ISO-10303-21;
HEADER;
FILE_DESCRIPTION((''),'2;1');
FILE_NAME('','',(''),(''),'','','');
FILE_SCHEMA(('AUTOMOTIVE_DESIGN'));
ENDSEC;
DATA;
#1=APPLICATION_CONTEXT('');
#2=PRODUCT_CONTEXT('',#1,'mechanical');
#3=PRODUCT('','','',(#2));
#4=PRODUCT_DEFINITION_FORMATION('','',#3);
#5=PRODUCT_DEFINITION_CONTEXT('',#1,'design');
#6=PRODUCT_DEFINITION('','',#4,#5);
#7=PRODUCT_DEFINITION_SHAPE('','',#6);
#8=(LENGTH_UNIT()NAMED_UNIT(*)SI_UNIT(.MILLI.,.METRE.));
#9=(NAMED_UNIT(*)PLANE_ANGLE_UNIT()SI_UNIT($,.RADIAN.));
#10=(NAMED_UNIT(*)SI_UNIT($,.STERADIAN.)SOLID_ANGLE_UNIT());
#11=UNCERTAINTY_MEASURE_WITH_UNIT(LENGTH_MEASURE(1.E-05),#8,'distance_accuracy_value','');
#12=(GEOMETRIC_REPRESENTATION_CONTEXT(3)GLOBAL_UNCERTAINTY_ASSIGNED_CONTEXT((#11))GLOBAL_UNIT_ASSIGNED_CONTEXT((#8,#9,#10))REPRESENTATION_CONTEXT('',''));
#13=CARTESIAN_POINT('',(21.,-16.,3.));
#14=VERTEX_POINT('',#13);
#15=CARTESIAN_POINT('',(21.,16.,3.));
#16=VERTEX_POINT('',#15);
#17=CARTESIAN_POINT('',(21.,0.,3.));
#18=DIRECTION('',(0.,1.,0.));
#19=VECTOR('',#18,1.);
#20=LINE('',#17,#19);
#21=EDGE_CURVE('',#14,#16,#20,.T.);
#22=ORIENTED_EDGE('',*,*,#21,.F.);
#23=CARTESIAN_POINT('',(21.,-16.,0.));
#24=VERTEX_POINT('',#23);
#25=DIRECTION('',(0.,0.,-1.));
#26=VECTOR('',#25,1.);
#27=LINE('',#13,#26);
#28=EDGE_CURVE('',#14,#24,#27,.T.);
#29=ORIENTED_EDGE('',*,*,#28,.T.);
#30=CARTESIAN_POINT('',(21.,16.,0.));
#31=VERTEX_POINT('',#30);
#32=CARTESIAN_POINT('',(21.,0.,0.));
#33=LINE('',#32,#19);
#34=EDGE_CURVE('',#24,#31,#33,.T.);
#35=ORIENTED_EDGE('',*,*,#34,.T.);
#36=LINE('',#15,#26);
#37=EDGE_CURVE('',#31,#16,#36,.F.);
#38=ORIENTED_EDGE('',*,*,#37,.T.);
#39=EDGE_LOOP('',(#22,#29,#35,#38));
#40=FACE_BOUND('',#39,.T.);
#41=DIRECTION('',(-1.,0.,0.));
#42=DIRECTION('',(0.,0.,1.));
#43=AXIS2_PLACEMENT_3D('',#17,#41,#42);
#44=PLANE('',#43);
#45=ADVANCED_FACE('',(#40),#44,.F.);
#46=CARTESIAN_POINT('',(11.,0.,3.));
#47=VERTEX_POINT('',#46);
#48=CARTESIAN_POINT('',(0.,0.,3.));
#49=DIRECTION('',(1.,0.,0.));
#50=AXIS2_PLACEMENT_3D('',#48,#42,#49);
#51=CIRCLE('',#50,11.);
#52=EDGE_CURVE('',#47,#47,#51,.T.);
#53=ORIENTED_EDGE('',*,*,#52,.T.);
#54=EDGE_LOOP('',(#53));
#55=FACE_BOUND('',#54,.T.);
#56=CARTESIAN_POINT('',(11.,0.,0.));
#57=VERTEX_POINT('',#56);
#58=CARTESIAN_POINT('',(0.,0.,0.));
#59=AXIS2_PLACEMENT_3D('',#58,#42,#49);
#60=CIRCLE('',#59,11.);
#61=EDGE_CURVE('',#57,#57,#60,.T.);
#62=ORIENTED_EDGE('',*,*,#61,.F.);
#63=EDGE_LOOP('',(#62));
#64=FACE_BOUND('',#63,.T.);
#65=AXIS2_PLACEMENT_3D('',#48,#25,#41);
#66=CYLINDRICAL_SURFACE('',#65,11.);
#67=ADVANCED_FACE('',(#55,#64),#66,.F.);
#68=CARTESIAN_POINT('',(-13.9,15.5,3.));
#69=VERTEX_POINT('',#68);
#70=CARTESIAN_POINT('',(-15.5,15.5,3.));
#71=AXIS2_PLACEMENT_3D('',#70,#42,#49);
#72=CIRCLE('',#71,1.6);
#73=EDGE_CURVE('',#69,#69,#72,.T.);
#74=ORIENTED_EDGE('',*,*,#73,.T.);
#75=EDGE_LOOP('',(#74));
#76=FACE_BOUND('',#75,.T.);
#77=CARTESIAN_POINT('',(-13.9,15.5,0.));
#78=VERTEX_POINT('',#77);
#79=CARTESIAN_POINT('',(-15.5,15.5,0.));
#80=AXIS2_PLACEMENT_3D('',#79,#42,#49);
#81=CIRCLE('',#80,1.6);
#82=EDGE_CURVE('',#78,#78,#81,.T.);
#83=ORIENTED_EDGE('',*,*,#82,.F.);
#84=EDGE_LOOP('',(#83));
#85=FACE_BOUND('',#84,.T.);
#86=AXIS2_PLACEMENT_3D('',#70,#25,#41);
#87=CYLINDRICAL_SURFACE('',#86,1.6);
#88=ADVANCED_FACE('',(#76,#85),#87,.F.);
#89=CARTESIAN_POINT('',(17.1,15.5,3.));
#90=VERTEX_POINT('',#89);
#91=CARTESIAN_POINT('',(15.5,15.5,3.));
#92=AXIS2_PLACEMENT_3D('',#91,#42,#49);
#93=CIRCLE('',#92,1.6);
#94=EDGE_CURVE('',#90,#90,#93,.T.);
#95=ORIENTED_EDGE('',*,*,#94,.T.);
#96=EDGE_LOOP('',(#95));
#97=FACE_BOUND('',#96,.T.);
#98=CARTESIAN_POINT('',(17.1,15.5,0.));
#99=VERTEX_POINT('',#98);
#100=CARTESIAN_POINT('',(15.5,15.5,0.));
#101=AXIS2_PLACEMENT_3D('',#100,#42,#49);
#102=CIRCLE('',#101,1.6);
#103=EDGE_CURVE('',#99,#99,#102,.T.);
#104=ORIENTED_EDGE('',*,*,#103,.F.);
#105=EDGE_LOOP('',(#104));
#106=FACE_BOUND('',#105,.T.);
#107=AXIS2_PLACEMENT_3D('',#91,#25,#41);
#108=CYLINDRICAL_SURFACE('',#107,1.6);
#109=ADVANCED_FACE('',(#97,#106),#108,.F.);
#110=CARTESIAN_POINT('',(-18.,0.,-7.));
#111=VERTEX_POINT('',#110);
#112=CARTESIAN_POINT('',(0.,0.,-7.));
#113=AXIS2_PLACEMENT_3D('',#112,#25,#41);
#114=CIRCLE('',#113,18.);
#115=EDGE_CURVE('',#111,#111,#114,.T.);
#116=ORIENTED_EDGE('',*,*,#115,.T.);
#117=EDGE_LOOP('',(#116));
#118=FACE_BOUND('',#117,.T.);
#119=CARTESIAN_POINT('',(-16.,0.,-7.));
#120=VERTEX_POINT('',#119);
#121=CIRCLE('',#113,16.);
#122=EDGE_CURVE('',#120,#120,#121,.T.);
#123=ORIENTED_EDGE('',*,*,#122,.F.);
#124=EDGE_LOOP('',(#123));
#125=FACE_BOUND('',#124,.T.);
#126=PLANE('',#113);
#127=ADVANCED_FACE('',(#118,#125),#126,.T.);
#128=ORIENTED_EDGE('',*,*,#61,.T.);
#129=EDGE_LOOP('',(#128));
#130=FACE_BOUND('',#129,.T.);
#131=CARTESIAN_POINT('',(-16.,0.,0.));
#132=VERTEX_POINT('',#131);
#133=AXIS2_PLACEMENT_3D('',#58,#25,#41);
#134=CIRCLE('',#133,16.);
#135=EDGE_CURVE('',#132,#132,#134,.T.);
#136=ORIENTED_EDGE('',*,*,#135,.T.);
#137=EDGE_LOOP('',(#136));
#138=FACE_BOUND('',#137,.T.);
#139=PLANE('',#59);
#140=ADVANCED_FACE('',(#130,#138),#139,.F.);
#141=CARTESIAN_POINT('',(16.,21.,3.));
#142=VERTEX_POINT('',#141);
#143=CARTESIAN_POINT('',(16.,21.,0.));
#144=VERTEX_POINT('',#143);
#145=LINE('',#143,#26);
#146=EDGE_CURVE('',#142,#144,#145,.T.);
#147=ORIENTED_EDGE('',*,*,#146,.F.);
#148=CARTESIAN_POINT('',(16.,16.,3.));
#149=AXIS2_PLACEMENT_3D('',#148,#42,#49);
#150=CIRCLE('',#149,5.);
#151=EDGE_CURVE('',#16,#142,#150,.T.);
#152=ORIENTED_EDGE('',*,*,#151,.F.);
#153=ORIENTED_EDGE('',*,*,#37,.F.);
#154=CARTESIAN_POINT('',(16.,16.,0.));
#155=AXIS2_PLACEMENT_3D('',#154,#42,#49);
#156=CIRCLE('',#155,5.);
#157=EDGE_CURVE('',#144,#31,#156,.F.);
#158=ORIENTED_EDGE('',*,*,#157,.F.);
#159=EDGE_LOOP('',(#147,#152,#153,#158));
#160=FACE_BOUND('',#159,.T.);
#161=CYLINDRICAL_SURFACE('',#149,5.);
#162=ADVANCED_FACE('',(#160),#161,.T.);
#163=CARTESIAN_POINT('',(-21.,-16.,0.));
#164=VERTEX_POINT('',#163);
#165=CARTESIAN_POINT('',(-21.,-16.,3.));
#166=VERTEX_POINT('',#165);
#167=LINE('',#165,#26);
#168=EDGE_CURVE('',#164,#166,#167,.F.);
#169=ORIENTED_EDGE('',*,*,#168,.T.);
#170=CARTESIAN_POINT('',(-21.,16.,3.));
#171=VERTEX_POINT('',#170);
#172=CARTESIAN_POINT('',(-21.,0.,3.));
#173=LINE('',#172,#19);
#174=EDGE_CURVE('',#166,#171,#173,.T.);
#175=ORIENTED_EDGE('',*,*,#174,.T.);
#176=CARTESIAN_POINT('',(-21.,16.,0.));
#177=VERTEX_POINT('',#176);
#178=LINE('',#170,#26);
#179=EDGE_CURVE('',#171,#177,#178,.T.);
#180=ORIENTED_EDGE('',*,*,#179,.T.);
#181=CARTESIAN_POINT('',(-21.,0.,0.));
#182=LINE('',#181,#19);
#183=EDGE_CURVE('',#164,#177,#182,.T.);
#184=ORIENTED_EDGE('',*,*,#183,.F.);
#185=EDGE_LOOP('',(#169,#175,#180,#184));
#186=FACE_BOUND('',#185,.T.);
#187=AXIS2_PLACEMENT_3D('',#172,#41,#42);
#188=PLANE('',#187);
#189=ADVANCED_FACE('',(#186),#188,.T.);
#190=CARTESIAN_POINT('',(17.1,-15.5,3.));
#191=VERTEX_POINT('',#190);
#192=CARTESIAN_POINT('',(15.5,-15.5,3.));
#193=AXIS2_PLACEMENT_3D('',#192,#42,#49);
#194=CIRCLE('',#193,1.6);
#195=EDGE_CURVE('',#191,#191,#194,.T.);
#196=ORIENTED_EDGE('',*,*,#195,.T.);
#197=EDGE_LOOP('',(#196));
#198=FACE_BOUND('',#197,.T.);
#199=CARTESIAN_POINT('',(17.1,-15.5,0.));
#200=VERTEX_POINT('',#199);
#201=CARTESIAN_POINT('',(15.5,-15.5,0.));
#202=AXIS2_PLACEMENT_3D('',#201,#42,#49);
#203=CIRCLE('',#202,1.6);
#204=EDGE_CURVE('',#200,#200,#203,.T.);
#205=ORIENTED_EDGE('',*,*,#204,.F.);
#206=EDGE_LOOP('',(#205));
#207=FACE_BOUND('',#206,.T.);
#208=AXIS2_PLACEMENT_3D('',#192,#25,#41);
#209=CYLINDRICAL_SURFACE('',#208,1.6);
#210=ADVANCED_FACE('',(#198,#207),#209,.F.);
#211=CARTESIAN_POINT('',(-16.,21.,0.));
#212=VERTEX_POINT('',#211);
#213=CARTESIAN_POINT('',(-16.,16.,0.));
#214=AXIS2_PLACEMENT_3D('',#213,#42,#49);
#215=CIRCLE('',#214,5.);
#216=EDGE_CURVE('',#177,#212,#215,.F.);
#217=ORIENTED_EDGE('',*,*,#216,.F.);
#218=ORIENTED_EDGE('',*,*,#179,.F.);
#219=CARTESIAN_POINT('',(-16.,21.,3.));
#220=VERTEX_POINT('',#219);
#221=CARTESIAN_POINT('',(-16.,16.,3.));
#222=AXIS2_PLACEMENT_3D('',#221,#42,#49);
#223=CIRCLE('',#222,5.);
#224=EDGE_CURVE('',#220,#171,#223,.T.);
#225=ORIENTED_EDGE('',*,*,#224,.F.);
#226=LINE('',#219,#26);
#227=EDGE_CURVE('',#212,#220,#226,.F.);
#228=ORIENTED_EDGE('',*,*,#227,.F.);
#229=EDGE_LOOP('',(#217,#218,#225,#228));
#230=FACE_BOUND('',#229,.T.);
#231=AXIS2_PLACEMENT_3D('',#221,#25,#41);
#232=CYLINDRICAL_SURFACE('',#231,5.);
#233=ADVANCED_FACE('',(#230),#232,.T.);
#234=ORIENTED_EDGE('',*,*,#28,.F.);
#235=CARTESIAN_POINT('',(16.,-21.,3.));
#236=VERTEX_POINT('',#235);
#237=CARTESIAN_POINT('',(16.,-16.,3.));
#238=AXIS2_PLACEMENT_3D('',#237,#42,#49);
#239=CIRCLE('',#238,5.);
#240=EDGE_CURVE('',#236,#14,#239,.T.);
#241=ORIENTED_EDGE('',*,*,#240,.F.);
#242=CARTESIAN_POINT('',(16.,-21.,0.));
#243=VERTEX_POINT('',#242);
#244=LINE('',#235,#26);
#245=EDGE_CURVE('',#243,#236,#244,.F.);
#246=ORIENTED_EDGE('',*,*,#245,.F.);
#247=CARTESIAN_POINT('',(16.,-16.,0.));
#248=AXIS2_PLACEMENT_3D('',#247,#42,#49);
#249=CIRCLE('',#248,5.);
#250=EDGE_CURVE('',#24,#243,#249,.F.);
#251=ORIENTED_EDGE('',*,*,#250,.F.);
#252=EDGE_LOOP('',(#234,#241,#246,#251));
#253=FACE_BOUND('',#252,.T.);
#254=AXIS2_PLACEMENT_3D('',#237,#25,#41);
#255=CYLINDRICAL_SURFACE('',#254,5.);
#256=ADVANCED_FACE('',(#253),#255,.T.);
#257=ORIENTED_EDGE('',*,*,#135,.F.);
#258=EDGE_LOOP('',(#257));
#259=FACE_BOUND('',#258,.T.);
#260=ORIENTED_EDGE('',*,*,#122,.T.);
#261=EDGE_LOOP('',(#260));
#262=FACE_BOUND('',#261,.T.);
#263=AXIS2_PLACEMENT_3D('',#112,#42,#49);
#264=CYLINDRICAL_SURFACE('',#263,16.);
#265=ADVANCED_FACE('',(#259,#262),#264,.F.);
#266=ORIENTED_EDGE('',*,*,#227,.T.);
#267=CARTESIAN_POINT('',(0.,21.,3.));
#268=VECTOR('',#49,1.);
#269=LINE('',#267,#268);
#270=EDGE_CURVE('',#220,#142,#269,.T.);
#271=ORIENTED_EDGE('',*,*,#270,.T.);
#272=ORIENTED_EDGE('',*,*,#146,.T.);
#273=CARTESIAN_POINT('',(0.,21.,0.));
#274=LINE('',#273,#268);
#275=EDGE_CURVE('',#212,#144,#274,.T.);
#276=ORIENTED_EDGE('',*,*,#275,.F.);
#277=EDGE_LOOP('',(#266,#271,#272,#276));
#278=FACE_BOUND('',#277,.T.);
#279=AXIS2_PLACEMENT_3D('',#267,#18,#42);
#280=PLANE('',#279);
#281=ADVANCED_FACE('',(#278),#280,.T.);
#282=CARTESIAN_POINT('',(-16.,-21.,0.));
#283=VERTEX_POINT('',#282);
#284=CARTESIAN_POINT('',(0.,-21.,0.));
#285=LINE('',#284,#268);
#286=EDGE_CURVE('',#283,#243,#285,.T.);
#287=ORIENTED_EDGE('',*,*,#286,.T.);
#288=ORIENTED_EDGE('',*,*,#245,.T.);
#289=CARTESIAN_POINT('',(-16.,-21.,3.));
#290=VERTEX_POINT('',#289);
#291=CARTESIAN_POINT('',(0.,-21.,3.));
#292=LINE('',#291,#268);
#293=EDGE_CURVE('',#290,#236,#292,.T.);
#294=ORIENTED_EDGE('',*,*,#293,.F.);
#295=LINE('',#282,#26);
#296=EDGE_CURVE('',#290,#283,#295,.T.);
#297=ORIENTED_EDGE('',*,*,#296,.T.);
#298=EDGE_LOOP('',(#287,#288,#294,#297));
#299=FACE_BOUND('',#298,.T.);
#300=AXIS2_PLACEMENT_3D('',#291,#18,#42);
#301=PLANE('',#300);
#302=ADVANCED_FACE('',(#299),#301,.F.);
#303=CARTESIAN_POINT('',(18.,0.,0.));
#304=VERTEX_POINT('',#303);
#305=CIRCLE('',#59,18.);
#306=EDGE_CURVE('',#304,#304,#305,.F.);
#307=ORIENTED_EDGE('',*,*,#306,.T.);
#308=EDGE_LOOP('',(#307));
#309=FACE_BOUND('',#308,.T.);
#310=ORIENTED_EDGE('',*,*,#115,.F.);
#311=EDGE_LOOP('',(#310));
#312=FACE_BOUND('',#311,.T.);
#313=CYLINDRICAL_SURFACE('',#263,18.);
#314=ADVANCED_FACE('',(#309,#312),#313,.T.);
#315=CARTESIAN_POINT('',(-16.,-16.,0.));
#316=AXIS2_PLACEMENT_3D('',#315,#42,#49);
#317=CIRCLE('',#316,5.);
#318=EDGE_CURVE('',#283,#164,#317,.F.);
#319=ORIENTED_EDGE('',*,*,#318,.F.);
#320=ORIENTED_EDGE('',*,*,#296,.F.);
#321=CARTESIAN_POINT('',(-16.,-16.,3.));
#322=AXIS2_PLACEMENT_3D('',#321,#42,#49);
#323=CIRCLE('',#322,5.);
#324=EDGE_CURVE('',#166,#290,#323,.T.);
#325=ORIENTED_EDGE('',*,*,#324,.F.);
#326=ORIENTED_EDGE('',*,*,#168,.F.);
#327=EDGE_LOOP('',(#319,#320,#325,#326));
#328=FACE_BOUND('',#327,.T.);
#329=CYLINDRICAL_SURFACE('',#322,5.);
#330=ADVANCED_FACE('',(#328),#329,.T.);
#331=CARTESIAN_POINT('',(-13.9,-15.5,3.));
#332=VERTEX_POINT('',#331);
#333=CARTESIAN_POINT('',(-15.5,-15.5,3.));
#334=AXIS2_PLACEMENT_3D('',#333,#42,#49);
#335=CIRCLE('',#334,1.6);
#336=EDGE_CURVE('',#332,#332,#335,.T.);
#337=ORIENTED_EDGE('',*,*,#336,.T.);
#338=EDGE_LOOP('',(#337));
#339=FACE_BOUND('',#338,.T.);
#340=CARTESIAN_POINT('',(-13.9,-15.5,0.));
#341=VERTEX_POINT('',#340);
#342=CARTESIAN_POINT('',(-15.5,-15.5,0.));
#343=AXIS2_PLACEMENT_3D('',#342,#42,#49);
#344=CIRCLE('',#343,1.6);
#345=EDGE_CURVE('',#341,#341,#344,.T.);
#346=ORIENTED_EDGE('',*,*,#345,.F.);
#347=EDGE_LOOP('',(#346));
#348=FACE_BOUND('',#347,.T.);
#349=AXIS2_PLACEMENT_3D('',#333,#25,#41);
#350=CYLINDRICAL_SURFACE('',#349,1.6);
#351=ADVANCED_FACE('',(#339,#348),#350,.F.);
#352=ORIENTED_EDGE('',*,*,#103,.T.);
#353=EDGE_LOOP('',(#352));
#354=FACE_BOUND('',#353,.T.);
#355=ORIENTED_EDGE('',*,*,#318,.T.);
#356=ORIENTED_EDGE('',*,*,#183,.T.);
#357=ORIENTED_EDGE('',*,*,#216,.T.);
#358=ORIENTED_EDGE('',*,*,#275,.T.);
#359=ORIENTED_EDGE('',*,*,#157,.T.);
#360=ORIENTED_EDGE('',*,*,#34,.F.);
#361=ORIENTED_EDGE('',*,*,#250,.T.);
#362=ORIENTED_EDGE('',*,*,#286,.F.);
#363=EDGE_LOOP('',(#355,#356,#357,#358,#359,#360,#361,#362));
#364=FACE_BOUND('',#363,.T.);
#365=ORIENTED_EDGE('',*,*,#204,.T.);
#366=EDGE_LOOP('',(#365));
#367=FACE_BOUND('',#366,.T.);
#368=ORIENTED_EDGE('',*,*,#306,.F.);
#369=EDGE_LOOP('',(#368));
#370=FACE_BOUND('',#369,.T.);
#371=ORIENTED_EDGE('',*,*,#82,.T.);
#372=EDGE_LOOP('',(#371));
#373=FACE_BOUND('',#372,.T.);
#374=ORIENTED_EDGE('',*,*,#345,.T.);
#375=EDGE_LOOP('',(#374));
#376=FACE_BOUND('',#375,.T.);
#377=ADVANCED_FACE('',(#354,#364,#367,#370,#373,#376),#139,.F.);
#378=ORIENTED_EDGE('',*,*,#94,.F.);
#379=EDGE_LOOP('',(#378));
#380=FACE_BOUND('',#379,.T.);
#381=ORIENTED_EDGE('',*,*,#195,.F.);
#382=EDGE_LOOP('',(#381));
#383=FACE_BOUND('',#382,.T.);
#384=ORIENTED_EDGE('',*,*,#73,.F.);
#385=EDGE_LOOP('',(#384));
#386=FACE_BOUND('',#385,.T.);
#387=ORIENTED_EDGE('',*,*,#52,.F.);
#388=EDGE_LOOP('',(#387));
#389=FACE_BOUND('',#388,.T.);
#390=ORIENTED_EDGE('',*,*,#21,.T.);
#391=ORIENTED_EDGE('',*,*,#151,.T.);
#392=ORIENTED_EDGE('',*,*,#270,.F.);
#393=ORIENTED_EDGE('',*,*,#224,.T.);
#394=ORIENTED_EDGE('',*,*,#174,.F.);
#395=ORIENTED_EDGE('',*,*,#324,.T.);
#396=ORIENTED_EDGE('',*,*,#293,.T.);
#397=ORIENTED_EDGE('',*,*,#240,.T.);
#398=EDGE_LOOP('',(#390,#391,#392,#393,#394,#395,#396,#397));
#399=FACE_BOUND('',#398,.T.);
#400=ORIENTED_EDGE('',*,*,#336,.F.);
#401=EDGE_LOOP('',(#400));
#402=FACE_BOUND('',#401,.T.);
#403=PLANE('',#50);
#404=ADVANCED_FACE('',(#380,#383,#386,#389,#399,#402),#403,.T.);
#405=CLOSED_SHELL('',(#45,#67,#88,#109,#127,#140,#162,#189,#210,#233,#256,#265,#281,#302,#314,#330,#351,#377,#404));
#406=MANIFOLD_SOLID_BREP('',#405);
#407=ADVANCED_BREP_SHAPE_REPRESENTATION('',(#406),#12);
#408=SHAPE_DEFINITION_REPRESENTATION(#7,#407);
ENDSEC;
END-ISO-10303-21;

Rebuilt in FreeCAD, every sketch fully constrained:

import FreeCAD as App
import Part
import Sketcher

V = App.Vector


def edges_at(feature, points):
    """Names of the edges that pass closest to the given points."""
    edges = feature.Shape.Edges
    near = lambda p: min(range(len(edges)), key=lambda i: edges[i].distToShape(Part.Vertex(*p))[0])
    return sorted({f"Edge{near(p) + 1}" for p in points})


def add_polygon(sketch, points):
    """Adds a closed chain of lines whose ends are joined by coincident constraints."""
    first, n = sketch.GeometryCount, len(points)
    for a, b in zip(points, points[1:] + points[:1]):
        sketch.addGeometry(Part.LineSegment(App.Vector(*a, 0), App.Vector(*b, 0)), False)
    for i in range(n):
        sketch.addConstraint(Sketcher.Constraint("Coincident", first + i, 2, first + (i + 1) % n, 1))

doc = App.newDocument("Part")
body = doc.addObject("PartDesign::Body", "Body")

# Sketch on XY plane
sketch1 = body.newObject("Sketcher::SketchObject", "Sketch")
sketch1.AttachmentSupport = (doc.getObject("XY_Plane"), [""])
sketch1.MapMode = "FlatFace"
add_polygon(sketch1, [(-21, 21), (-21, -21), (21, -21), (21, 21)])  # lines 0-3
sketch1.addGeometry(Part.Circle(V(-15.5, -15.5, 0), V(0, 0, 1), 1.6), False)  # 4
sketch1.addGeometry(Part.Circle(V(15.5, -15.5, 0), V(0, 0, 1), 1.6), False)  # 5
sketch1.addGeometry(Part.Circle(V(-15.5, 15.5, 0), V(0, 0, 1), 1.6), False)  # 6
sketch1.addGeometry(Part.Circle(V(0, 0, 0), V(0, 0, 1), 11), False)  # 7
sketch1.addGeometry(Part.Circle(V(15.5, 15.5, 0), V(0, 0, 1), 1.6), False)  # 8
sketch1.addConstraint([
    Sketcher.Constraint("Vertical", 0),
    Sketcher.Constraint("Horizontal", 1),
    Sketcher.Constraint("Vertical", 2),
    Sketcher.Constraint("Horizontal", 3),
    Sketcher.Constraint("Coincident", 7, 3, -1, 1),
    Sketcher.Constraint("Equal", 4, 5),
    Sketcher.Constraint("Equal", 5, 6),
    Sketcher.Constraint("Equal", 6, 8),
    Sketcher.Constraint("Symmetric", 5, 3, 6, 3, -1, 1),
    Sketcher.Constraint("Symmetric", 4, 3, 8, 3, -1, 1),
    Sketcher.Constraint("Symmetric", 0, 2, 2, 2, -1, 1),
    Sketcher.Constraint("Symmetric", 4, 3, 5, 3, -2),
    Sketcher.Constraint("Equal", 3, 0),
    Sketcher.Constraint("Diameter", 7, 22.0),
    Sketcher.Constraint("Diameter", 4, 3.2),
    Sketcher.Constraint("DistanceX", 1, 1, 1, 2, 42.0),
    Sketcher.Constraint("DistanceX", 4, 3, 5, 3, 31.0),
    Sketcher.Constraint("DistanceY", 4, 3, 6, 3, 31.0),
])
pad1 = body.newObject("PartDesign::Pad", "Pad")
pad1.Profile = sketch1
pad1.Length = 3
doc.recompute()

fillet = body.newObject("PartDesign::Fillet", "Fillet")
fillet.Base = (pad1, edges_at(pad1, [
    (-21, -21, 1.5),
    (-21, 21, 1.5),
    (21, 21, 1.5),
    (21, -21, 1.5),
]))
fillet.Radius = 5

# Sketch on XY plane
sketch2 = body.newObject("Sketcher::SketchObject", "Sketch001")
sketch2.AttachmentSupport = (doc.getObject("XY_Plane"), [""])
sketch2.MapMode = "FlatFace"
sketch2.addGeometry([
    Part.Circle(V(0, 0, 0), V(0, 0, 1), 18),
    Part.Circle(V(0, 0, 0), V(0, 0, 1), 16),
], False)
sketch2.addConstraint([
    Sketcher.Constraint("Coincident", 0, 3, -1, 1),
    Sketcher.Constraint("Coincident", 1, 3, -1, 1),
    Sketcher.Constraint("Diameter", 0, 36.0),
    Sketcher.Constraint("Diameter", 1, 32.0),
])
pad2 = body.newObject("PartDesign::Pad", "Pad001")
pad2.Profile = sketch2
pad2.Length = 7
pad2.Reversed = True

doc.recompute()
